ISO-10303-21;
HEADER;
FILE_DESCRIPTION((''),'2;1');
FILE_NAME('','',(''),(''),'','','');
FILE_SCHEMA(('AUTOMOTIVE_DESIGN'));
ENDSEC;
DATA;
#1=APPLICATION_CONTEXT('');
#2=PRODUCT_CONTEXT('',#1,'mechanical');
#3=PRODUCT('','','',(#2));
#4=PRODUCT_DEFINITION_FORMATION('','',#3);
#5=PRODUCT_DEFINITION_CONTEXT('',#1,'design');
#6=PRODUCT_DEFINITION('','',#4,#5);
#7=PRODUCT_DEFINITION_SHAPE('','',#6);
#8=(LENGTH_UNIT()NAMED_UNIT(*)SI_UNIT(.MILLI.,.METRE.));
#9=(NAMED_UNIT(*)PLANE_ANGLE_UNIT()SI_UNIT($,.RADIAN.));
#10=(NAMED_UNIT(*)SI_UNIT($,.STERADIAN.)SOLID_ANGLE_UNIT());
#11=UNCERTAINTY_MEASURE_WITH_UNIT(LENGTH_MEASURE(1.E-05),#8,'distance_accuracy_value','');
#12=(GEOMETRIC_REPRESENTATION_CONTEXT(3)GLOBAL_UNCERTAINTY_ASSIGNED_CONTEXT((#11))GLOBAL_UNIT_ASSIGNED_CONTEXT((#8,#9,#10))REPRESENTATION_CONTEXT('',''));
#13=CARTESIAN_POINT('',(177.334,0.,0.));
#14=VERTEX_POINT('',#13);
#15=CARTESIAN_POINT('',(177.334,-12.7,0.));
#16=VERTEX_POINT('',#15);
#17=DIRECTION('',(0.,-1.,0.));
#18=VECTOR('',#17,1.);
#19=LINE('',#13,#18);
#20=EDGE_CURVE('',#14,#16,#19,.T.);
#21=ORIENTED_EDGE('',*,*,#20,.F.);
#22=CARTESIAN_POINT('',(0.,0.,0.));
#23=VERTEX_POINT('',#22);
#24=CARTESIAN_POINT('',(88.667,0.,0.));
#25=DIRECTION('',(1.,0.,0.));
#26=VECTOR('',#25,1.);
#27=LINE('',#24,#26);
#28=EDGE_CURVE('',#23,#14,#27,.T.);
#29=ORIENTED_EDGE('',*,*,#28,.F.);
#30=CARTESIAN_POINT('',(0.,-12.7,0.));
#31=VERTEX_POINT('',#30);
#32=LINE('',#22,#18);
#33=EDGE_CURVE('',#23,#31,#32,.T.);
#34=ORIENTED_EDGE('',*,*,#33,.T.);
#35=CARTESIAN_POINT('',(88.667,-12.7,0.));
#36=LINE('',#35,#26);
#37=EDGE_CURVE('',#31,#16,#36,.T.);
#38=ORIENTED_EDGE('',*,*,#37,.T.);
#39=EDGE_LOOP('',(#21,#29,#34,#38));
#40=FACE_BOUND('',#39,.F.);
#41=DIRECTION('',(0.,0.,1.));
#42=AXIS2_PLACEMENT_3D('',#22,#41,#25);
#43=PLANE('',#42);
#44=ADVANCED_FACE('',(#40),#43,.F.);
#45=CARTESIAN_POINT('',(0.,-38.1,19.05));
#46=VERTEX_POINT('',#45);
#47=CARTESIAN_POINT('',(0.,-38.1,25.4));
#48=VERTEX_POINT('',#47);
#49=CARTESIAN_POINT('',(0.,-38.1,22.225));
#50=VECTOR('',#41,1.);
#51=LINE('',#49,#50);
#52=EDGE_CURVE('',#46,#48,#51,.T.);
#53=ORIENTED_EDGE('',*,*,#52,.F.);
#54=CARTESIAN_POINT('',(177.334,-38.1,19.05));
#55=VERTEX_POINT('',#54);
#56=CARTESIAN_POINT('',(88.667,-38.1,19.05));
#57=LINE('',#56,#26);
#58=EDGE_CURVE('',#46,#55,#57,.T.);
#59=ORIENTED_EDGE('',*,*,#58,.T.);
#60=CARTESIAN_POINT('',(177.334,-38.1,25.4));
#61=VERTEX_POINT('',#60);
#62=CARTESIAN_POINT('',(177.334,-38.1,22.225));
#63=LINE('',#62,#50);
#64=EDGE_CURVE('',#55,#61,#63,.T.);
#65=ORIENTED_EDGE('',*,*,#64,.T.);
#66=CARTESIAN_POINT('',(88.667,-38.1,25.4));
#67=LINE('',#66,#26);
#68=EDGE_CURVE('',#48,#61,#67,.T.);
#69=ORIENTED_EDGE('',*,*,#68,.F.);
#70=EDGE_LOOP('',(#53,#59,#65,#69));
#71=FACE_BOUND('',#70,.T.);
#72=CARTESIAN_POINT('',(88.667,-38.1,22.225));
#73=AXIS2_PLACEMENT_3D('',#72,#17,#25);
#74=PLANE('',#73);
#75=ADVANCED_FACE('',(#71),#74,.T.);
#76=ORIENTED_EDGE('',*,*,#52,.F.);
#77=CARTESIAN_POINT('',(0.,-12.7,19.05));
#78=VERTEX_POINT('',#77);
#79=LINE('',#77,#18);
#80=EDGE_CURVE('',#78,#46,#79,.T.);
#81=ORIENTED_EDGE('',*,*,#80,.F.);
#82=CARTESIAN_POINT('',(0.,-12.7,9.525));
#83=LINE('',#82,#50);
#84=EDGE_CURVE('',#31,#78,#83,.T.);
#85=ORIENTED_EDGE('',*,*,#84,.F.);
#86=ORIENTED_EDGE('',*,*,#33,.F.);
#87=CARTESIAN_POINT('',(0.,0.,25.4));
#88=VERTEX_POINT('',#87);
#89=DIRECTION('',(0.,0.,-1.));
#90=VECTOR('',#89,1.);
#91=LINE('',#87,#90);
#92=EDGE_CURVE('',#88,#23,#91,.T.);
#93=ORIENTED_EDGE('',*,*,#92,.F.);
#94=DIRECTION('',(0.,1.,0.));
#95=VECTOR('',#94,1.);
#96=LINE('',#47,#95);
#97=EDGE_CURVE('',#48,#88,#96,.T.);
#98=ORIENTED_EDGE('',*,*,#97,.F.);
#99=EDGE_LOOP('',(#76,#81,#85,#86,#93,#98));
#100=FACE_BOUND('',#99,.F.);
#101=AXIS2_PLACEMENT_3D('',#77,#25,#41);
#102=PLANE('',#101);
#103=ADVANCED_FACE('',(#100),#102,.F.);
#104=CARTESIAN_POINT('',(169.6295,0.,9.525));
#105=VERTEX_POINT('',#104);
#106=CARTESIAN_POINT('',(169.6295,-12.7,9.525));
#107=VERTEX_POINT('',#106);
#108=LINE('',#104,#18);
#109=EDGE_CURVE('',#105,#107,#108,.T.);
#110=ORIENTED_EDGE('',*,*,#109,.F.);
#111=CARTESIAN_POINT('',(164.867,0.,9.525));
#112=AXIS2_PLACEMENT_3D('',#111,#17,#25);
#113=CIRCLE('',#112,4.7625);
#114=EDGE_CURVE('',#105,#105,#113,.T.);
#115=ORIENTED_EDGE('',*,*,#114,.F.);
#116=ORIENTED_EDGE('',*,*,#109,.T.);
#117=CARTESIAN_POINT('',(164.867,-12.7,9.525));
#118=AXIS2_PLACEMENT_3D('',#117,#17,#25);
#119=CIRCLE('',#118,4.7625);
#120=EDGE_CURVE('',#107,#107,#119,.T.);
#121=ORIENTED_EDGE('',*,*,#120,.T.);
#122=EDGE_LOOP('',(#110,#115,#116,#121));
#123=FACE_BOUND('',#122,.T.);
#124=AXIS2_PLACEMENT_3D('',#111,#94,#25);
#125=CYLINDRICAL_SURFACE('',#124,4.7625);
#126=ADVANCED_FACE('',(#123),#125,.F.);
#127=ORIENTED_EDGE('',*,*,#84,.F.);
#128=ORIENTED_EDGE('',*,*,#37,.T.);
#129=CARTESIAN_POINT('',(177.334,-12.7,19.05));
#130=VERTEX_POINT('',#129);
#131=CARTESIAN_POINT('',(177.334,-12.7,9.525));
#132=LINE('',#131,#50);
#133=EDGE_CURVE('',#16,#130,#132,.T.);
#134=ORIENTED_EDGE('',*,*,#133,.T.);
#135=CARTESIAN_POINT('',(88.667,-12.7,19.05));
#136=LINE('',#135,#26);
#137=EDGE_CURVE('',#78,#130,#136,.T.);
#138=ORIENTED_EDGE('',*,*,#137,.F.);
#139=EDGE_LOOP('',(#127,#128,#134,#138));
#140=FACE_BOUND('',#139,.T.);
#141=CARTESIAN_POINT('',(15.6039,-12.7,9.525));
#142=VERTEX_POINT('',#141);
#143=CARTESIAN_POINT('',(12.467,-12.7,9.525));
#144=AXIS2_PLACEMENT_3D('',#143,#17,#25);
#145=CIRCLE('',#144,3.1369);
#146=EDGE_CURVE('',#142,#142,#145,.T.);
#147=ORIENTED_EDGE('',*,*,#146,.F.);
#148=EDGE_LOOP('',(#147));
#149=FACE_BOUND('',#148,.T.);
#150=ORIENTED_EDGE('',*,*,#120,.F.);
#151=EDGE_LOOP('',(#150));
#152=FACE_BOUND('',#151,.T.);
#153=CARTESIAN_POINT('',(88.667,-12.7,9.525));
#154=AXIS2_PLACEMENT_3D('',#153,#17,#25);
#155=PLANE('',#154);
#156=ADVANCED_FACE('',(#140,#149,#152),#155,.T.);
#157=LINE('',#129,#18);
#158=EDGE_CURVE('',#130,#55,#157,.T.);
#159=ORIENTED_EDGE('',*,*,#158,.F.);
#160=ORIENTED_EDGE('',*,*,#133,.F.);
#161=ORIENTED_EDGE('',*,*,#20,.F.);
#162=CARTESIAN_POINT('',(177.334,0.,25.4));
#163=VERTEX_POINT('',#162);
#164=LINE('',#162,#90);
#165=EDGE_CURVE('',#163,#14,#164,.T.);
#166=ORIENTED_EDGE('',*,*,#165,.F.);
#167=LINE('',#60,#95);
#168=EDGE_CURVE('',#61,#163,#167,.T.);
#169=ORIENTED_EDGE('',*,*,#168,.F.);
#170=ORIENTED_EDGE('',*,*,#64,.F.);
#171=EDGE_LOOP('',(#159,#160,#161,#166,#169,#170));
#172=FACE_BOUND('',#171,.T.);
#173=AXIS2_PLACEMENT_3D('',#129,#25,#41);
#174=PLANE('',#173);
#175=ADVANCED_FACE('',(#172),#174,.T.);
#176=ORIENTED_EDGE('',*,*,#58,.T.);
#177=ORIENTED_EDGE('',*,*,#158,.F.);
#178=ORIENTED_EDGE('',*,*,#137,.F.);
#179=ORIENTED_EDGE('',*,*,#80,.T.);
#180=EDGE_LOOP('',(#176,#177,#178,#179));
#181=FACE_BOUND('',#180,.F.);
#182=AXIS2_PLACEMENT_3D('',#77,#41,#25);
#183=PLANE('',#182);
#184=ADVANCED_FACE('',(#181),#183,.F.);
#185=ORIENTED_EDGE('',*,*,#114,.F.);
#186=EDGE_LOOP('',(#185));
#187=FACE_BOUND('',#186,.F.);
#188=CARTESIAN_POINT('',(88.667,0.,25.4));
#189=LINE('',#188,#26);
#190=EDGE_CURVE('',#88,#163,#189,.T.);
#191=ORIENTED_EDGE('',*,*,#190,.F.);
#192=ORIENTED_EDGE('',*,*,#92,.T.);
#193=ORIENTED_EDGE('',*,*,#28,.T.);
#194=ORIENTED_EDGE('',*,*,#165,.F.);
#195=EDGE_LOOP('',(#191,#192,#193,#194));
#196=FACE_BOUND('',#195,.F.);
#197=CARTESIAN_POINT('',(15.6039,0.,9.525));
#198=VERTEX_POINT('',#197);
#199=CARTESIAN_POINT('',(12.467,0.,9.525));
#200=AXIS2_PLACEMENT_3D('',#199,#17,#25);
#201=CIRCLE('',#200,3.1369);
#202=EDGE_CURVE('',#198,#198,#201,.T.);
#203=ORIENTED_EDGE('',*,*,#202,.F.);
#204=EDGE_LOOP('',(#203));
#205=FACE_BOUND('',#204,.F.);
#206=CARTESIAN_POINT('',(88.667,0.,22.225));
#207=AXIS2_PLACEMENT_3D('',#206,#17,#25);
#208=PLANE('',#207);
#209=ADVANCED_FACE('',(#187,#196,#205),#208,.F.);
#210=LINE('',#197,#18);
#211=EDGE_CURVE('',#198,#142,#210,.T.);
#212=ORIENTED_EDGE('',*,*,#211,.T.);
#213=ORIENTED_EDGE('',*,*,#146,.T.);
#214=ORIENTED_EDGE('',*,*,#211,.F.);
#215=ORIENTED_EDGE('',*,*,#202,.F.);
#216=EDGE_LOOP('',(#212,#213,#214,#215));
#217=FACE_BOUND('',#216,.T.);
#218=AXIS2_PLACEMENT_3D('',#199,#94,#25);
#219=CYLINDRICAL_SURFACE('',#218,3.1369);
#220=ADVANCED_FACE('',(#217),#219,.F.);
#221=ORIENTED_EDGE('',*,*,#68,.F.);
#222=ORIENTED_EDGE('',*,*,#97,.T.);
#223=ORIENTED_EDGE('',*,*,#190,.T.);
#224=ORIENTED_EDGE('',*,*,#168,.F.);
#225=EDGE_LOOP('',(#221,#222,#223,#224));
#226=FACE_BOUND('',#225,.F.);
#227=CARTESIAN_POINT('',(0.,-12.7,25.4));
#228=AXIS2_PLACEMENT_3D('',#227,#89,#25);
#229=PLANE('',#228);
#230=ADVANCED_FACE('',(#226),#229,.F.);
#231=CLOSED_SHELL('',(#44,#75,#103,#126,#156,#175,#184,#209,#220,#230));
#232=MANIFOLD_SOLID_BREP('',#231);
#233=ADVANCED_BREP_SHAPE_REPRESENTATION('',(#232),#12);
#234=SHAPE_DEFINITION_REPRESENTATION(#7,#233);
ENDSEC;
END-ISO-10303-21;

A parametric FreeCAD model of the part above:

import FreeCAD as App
import Part
import Sketcher
Q = App.Units.Quantity


def add_polygon(sketch, points):
    """Adds a closed chain of lines whose ends are joined by coincident constraints."""
    first, n = sketch.GeometryCount, len(points)
    for a, b in zip(points, points[1:] + points[:1]):
        sketch.addGeometry(Part.LineSegment(App.Vector(*a, 0), App.Vector(*b, 0)), False)
    for i in range(n):
        sketch.addConstraint(Sketcher.Constraint("Coincident", first + i, 2, first + (i + 1) % n, 1))

doc = App.newDocument("Part")
params = doc.addObject("Spreadsheet::Sheet", "Params")
for row, (alias, value) in enumerate([
    ("sketch1_diameter", "0.247 in"),
    ("sketch1_diameter2", "0.375 in"),
    ("sketch1_height", "0.75 in"),
    ("pad1_length", "0.5 in"),
    ("sketch2_height", "0.25 in"),
    ("pad2_length", "1 in"),
    ("pad2_length2", "0.5 in"),
], start=1):
    params.set(f"A{row}", alias)
    params.set(f"B{row}", "=" + value)
    params.setAlias(f"B{row}", alias)

body = doc.addObject("PartDesign::Body", "Body")

# Sketch on XZ plane
sketch1 = doc.addObject("Sketcher::SketchObject", "Sketch")
body.addObject(sketch1)
sketch1.AttachmentSupport = (doc.XZ_Plane, [""])
sketch1.MapMode = "FlatFace"
add_polygon(sketch1, [(0, 19.1), (0, 0), (177.3, 0), (177.3, 19.1)])  # lines 0-3
sketch1.addGeometry(Part.Circle(App.Vector(12.5, 9.5, 0), App.Vector(0, 0, 1), 3.1), False)  # 4
sketch1.addGeometry(Part.Circle(App.Vector(164.9, 9.5, 0), App.Vector(0, 0, 1), 4.8), False)  # 5
sketch1.addConstraint(Sketcher.Constraint("Vertical", 0))
sketch1.addConstraint(Sketcher.Constraint("Horizontal", 1))
sketch1.addConstraint(Sketcher.Constraint("Vertical", 2))
sketch1.addConstraint(Sketcher.Constraint("Horizontal", 3))
sketch1.addConstraint(Sketcher.Constraint("Coincident", 0, 2, -1, 1))
sketch1.addConstraint(Sketcher.Constraint("Horizontal", 4, 3, 5, 3))
sketch1.addConstraint(Sketcher.Constraint("Diameter", 4, Q("0.247 in")))
sketch1.addConstraint(Sketcher.Constraint("Diameter", 5, Q("0.375 in")))
sketch1.addConstraint(Sketcher.Constraint("DistanceX", 4, 3, 5, 3, Q("6 in")))
sketch1.addConstraint(Sketcher.Constraint("DistanceY", 0, 2, 0, 1, Q("0.75 in")))
sketch1.addConstraint(Sketcher.Constraint("DistanceY", -1, 1, 4, 3, Q("0.375 in")))
sketch1.addConstraint(Sketcher.Constraint("DistanceX", 1, 1, 1, 2, 177.334))
sketch1.addConstraint(Sketcher.Constraint("DistanceX", -1, 1, 4, 3, 12.467))
sketch1.setExpression("Constraints[10]", "Params.sketch1_diameter")
sketch1.setExpression("Constraints[11]", "Params.sketch1_diameter2")
sketch1.setExpression("Constraints[13]", "Params.sketch1_height")
pad1 = doc.addObject("PartDesign::Pad", "Pad")
body.addObject(pad1)
pad1.Profile = sketch1
pad1.setExpression("Length", "Params.pad1_length")

# Sketch on XZ plane
sketch2 = doc.addObject("Sketcher::SketchObject", "Sketch001")
body.addObject(sketch2)
sketch2.AttachmentSupport = (doc.XZ_Plane, [""])
sketch2.MapMode = "FlatFace"
sketch2.AttachmentOffset = App.Placement(App.Vector(0, 0, 0.5 * 25.4), App.Rotation())
add_polygon(sketch2, [(0, 25), (0, 19), (177, 19), (177, 25)])  # lines 0-3
sketch2.addConstraint(Sketcher.Constraint("Vertical", 0))
sketch2.addConstraint(Sketcher.Constraint("Horizontal", 1))
sketch2.addConstraint(Sketcher.Constraint("Vertical", 2))
sketch2.addConstraint(Sketcher.Constraint("Horizontal", 3))
sketch2.addConstraint(Sketcher.Constraint("PointOnObject", 0, 2, -2))
sketch2.addConstraint(Sketcher.Constraint("DistanceY", -1, 1, 2, 2, Q("1 in")))
sketch2.addConstraint(Sketcher.Constraint("DistanceY", 0, 2, 0, 1, Q("0.25 in")))
sketch2.addConstraint(Sketcher.Constraint("DistanceX", 1, 1, 1, 2, 177.334))
sketch2.setExpression("Constraints[10]", "Params.sketch2_height")
pad2 = doc.addObject("PartDesign::Pad", "Pad001")
body.addObject(pad2)
pad2.Profile = sketch2
pad2.Type = "TwoLengths"
pad2.setExpression("Length", "Params.pad2_length")
pad2.setExpression("Length2", "Params.pad2_length2")

doc.recompute()
